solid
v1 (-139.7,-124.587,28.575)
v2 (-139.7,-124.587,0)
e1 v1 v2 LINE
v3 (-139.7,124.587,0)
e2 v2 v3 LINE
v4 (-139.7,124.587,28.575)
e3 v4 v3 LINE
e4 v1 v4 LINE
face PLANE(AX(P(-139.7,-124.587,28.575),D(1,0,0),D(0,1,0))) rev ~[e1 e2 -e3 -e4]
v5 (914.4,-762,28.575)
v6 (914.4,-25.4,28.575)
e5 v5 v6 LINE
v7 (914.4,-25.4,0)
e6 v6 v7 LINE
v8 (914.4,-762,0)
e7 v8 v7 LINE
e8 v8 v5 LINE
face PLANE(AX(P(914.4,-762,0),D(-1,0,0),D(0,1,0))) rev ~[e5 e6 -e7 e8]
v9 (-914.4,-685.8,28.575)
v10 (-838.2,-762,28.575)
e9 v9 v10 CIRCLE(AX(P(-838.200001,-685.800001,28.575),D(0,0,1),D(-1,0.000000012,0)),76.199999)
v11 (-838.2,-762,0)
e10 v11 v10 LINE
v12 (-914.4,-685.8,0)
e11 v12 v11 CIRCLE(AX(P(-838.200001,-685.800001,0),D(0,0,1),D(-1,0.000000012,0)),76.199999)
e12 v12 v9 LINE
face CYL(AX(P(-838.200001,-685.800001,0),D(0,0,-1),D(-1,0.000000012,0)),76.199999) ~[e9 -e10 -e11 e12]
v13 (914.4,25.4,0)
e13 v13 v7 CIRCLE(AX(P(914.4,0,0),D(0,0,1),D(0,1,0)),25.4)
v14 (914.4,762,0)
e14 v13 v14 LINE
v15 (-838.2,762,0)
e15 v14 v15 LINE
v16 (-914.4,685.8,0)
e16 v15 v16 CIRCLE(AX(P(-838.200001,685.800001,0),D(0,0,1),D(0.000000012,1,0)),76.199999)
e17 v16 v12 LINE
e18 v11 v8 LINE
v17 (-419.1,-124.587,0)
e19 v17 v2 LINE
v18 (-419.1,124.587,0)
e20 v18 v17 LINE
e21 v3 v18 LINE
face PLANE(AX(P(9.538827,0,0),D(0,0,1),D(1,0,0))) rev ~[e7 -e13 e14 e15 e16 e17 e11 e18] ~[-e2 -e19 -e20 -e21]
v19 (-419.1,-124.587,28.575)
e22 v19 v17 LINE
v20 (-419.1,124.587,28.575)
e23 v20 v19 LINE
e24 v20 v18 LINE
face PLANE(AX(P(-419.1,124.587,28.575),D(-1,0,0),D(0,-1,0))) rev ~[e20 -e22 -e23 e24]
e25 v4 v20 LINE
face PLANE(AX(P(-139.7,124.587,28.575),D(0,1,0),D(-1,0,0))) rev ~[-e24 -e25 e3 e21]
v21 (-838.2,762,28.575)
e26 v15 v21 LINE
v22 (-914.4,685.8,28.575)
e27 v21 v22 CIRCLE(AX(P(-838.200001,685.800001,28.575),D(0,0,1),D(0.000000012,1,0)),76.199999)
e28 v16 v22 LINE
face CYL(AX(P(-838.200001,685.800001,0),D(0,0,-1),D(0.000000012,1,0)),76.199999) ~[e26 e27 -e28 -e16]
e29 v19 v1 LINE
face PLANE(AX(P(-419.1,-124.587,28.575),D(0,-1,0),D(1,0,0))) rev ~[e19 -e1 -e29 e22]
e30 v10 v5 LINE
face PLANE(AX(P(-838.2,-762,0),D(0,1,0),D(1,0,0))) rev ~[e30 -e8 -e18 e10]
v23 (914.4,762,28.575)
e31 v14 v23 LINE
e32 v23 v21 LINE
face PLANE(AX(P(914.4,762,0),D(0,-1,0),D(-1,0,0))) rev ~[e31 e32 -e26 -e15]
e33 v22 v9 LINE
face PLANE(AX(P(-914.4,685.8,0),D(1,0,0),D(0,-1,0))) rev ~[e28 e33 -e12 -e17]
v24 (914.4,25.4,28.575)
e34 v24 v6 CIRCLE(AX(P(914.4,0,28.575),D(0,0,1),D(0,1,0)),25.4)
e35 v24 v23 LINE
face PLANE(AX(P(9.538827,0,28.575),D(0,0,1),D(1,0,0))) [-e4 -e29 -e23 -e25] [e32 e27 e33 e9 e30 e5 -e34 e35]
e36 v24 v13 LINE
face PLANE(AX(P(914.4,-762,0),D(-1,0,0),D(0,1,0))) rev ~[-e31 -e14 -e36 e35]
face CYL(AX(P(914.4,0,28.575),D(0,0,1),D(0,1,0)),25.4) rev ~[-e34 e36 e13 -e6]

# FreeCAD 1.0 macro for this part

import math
import FreeCAD as App
import Part
import Sketcher

V = App.Vector
Q = App.Units.Quantity


def add_polygon(sketch, points):
    """Adds a closed chain of lines whose ends are joined by coincident constraints."""
    first, n = sketch.GeometryCount, len(points)
    for a, b in zip(points, points[1:] + points[:1]):
        sketch.addGeometry(Part.LineSegment(App.Vector(*a, 0), App.Vector(*b, 0)), False)
    for i in range(n):
        sketch.addConstraint(Sketcher.Constraint("Coincident", first + i, 2, first + (i + 1) % n, 1))

doc = App.newDocument("Part")
body = doc.addObject("PartDesign::Body", "Body")

# Sketch on XY plane
sketch1 = body.newObject("Sketcher::SketchObject", "Sketch")
sketch1.AttachmentSupport = (doc.getObject("XY_Plane"), [""])
sketch1.MapMode = "FlatFace"
sketch1.addGeometry([
    Part.LineSegment(V(914, -762, 0), V(914, 762, 0)),  # 0
    Part.LineSegment(V(914, 762, 0), V(-838, 762, 0)),  # 1
    Part.ArcOfCircle(Part.Circle(V(-838, 686, 0), V(0, 0, 1), 76), math.radians(90), math.radians(180)),  # 2
    Part.LineSegment(V(-914, 686, 0), V(-914, -686, 0)),  # 3
    Part.ArcOfCircle(Part.Circle(V(-838, -686, 0), V(0, 0, 1), 76), math.radians(180), math.radians(270)),  # 4
    Part.LineSegment(V(-838, -762, 0), V(914, -762, 0)),  # 5
], False)
sketch1.addConstraint([
    Sketcher.Constraint("Coincident", 0, 2, 1, 1),
    Sketcher.Constraint("Tangent", 1, 2, 2, 1),
    Sketcher.Constraint("Tangent", 2, 2, 3, 1),
    Sketcher.Constraint("Tangent", 3, 2, 4, 1),
    Sketcher.Constraint("Tangent", 4, 2, 5, 1),
    Sketcher.Constraint("Coincident", 5, 2, 0, 1),
    Sketcher.Constraint("Vertical", 0),
    Sketcher.Constraint("Horizontal", 1),
    Sketcher.Constraint("Vertical", 3),
    Sketcher.Constraint("Horizontal", 5),
    Sketcher.Constraint("Equal", 2, 4),
    Sketcher.Constraint("Radius", 2, Q("3 in")),
    Sketcher.Constraint("DistanceX", 1, 2, 1, 1, Q("69 in")),
    Sketcher.Constraint("DistanceY", 0, 1, 0, 2, Q("60 in")),
    Sketcher.Constraint("DistanceX", 2, 3, -1, 1, Q("33 in")),
    Sketcher.Constraint("DistanceY", -1, 1, 2, 3, Q("27 in")),
])
pad1 = body.newObject("PartDesign::Pad", "Pad")
pad1.Profile = sketch1
pad1.Length = Q("1.125 in")

# Sketch on XY plane
sketch2 = body.newObject("Sketcher::SketchObject", "Sketch001")
sketch2.AttachmentSupport = (doc.getObject("XY_Plane"), [""])
sketch2.MapMode = "FlatFace"
sketch2.AttachmentOffset = App.Placement(V(0, 0, 1.125 * 25.4), App.Rotation())
add_polygon(sketch2, [(-140, 125), (-419, 125), (-419, -125), (-140, -125)])  # lines 0-3
sketch2.addGeometry(Part.LineSegment(V(914, -25, 0), V(914, 25, 0)), False)  # 4
sketch2.addGeometry(Part.ArcOfCircle(Part.Circle(V(914, 0, 0), V(0, 0, 1), 25), math.radians(90), math.radians(270)), False)  # 5
sketch2.addConstraint([
    Sketcher.Constraint("Coincident", 4, 1, 5, 2),
    Sketcher.Constraint("Coincident", 5, 1, 4, 2),
    Sketcher.Constraint("Horizontal", 0),
    Sketcher.Constraint("Vertical", 1),
    Sketcher.Constraint("Horizontal", 2),
    Sketcher.Constraint("Vertical", 3),
    Sketcher.Constraint("Vertical", 4),
    Sketcher.Constraint("PointOnObject", 5, 3, -1),
    Sketcher.Constraint("Vertical", 5, 3, 4, 1),
    Sketcher.Constraint("Radius", 5, Q("1 in")),
    Sketcher.Constraint("DistanceX", 0, 2, 0, 1, Q("11 in")),
    Sketcher.Constraint("DistanceX", -1, 1, 5, 3, Q("36 in")),
    Sketcher.Constraint("DistanceY", 1, 2, 1, 1, Q("9.81 in")),
    Sketcher.Constraint("DistanceX", 0, 2, -1, 1, Q("16.5 in")),
    Sketcher.Constraint("DistanceY", -1, 1, 0, 2, Q("4.905 in")),
])
pocket1 = body.newObject("PartDesign::Pocket", "Pocket")
pocket1.Profile = sketch2
pocket1.Length = Q("1.125 in")

doc.recompute()
